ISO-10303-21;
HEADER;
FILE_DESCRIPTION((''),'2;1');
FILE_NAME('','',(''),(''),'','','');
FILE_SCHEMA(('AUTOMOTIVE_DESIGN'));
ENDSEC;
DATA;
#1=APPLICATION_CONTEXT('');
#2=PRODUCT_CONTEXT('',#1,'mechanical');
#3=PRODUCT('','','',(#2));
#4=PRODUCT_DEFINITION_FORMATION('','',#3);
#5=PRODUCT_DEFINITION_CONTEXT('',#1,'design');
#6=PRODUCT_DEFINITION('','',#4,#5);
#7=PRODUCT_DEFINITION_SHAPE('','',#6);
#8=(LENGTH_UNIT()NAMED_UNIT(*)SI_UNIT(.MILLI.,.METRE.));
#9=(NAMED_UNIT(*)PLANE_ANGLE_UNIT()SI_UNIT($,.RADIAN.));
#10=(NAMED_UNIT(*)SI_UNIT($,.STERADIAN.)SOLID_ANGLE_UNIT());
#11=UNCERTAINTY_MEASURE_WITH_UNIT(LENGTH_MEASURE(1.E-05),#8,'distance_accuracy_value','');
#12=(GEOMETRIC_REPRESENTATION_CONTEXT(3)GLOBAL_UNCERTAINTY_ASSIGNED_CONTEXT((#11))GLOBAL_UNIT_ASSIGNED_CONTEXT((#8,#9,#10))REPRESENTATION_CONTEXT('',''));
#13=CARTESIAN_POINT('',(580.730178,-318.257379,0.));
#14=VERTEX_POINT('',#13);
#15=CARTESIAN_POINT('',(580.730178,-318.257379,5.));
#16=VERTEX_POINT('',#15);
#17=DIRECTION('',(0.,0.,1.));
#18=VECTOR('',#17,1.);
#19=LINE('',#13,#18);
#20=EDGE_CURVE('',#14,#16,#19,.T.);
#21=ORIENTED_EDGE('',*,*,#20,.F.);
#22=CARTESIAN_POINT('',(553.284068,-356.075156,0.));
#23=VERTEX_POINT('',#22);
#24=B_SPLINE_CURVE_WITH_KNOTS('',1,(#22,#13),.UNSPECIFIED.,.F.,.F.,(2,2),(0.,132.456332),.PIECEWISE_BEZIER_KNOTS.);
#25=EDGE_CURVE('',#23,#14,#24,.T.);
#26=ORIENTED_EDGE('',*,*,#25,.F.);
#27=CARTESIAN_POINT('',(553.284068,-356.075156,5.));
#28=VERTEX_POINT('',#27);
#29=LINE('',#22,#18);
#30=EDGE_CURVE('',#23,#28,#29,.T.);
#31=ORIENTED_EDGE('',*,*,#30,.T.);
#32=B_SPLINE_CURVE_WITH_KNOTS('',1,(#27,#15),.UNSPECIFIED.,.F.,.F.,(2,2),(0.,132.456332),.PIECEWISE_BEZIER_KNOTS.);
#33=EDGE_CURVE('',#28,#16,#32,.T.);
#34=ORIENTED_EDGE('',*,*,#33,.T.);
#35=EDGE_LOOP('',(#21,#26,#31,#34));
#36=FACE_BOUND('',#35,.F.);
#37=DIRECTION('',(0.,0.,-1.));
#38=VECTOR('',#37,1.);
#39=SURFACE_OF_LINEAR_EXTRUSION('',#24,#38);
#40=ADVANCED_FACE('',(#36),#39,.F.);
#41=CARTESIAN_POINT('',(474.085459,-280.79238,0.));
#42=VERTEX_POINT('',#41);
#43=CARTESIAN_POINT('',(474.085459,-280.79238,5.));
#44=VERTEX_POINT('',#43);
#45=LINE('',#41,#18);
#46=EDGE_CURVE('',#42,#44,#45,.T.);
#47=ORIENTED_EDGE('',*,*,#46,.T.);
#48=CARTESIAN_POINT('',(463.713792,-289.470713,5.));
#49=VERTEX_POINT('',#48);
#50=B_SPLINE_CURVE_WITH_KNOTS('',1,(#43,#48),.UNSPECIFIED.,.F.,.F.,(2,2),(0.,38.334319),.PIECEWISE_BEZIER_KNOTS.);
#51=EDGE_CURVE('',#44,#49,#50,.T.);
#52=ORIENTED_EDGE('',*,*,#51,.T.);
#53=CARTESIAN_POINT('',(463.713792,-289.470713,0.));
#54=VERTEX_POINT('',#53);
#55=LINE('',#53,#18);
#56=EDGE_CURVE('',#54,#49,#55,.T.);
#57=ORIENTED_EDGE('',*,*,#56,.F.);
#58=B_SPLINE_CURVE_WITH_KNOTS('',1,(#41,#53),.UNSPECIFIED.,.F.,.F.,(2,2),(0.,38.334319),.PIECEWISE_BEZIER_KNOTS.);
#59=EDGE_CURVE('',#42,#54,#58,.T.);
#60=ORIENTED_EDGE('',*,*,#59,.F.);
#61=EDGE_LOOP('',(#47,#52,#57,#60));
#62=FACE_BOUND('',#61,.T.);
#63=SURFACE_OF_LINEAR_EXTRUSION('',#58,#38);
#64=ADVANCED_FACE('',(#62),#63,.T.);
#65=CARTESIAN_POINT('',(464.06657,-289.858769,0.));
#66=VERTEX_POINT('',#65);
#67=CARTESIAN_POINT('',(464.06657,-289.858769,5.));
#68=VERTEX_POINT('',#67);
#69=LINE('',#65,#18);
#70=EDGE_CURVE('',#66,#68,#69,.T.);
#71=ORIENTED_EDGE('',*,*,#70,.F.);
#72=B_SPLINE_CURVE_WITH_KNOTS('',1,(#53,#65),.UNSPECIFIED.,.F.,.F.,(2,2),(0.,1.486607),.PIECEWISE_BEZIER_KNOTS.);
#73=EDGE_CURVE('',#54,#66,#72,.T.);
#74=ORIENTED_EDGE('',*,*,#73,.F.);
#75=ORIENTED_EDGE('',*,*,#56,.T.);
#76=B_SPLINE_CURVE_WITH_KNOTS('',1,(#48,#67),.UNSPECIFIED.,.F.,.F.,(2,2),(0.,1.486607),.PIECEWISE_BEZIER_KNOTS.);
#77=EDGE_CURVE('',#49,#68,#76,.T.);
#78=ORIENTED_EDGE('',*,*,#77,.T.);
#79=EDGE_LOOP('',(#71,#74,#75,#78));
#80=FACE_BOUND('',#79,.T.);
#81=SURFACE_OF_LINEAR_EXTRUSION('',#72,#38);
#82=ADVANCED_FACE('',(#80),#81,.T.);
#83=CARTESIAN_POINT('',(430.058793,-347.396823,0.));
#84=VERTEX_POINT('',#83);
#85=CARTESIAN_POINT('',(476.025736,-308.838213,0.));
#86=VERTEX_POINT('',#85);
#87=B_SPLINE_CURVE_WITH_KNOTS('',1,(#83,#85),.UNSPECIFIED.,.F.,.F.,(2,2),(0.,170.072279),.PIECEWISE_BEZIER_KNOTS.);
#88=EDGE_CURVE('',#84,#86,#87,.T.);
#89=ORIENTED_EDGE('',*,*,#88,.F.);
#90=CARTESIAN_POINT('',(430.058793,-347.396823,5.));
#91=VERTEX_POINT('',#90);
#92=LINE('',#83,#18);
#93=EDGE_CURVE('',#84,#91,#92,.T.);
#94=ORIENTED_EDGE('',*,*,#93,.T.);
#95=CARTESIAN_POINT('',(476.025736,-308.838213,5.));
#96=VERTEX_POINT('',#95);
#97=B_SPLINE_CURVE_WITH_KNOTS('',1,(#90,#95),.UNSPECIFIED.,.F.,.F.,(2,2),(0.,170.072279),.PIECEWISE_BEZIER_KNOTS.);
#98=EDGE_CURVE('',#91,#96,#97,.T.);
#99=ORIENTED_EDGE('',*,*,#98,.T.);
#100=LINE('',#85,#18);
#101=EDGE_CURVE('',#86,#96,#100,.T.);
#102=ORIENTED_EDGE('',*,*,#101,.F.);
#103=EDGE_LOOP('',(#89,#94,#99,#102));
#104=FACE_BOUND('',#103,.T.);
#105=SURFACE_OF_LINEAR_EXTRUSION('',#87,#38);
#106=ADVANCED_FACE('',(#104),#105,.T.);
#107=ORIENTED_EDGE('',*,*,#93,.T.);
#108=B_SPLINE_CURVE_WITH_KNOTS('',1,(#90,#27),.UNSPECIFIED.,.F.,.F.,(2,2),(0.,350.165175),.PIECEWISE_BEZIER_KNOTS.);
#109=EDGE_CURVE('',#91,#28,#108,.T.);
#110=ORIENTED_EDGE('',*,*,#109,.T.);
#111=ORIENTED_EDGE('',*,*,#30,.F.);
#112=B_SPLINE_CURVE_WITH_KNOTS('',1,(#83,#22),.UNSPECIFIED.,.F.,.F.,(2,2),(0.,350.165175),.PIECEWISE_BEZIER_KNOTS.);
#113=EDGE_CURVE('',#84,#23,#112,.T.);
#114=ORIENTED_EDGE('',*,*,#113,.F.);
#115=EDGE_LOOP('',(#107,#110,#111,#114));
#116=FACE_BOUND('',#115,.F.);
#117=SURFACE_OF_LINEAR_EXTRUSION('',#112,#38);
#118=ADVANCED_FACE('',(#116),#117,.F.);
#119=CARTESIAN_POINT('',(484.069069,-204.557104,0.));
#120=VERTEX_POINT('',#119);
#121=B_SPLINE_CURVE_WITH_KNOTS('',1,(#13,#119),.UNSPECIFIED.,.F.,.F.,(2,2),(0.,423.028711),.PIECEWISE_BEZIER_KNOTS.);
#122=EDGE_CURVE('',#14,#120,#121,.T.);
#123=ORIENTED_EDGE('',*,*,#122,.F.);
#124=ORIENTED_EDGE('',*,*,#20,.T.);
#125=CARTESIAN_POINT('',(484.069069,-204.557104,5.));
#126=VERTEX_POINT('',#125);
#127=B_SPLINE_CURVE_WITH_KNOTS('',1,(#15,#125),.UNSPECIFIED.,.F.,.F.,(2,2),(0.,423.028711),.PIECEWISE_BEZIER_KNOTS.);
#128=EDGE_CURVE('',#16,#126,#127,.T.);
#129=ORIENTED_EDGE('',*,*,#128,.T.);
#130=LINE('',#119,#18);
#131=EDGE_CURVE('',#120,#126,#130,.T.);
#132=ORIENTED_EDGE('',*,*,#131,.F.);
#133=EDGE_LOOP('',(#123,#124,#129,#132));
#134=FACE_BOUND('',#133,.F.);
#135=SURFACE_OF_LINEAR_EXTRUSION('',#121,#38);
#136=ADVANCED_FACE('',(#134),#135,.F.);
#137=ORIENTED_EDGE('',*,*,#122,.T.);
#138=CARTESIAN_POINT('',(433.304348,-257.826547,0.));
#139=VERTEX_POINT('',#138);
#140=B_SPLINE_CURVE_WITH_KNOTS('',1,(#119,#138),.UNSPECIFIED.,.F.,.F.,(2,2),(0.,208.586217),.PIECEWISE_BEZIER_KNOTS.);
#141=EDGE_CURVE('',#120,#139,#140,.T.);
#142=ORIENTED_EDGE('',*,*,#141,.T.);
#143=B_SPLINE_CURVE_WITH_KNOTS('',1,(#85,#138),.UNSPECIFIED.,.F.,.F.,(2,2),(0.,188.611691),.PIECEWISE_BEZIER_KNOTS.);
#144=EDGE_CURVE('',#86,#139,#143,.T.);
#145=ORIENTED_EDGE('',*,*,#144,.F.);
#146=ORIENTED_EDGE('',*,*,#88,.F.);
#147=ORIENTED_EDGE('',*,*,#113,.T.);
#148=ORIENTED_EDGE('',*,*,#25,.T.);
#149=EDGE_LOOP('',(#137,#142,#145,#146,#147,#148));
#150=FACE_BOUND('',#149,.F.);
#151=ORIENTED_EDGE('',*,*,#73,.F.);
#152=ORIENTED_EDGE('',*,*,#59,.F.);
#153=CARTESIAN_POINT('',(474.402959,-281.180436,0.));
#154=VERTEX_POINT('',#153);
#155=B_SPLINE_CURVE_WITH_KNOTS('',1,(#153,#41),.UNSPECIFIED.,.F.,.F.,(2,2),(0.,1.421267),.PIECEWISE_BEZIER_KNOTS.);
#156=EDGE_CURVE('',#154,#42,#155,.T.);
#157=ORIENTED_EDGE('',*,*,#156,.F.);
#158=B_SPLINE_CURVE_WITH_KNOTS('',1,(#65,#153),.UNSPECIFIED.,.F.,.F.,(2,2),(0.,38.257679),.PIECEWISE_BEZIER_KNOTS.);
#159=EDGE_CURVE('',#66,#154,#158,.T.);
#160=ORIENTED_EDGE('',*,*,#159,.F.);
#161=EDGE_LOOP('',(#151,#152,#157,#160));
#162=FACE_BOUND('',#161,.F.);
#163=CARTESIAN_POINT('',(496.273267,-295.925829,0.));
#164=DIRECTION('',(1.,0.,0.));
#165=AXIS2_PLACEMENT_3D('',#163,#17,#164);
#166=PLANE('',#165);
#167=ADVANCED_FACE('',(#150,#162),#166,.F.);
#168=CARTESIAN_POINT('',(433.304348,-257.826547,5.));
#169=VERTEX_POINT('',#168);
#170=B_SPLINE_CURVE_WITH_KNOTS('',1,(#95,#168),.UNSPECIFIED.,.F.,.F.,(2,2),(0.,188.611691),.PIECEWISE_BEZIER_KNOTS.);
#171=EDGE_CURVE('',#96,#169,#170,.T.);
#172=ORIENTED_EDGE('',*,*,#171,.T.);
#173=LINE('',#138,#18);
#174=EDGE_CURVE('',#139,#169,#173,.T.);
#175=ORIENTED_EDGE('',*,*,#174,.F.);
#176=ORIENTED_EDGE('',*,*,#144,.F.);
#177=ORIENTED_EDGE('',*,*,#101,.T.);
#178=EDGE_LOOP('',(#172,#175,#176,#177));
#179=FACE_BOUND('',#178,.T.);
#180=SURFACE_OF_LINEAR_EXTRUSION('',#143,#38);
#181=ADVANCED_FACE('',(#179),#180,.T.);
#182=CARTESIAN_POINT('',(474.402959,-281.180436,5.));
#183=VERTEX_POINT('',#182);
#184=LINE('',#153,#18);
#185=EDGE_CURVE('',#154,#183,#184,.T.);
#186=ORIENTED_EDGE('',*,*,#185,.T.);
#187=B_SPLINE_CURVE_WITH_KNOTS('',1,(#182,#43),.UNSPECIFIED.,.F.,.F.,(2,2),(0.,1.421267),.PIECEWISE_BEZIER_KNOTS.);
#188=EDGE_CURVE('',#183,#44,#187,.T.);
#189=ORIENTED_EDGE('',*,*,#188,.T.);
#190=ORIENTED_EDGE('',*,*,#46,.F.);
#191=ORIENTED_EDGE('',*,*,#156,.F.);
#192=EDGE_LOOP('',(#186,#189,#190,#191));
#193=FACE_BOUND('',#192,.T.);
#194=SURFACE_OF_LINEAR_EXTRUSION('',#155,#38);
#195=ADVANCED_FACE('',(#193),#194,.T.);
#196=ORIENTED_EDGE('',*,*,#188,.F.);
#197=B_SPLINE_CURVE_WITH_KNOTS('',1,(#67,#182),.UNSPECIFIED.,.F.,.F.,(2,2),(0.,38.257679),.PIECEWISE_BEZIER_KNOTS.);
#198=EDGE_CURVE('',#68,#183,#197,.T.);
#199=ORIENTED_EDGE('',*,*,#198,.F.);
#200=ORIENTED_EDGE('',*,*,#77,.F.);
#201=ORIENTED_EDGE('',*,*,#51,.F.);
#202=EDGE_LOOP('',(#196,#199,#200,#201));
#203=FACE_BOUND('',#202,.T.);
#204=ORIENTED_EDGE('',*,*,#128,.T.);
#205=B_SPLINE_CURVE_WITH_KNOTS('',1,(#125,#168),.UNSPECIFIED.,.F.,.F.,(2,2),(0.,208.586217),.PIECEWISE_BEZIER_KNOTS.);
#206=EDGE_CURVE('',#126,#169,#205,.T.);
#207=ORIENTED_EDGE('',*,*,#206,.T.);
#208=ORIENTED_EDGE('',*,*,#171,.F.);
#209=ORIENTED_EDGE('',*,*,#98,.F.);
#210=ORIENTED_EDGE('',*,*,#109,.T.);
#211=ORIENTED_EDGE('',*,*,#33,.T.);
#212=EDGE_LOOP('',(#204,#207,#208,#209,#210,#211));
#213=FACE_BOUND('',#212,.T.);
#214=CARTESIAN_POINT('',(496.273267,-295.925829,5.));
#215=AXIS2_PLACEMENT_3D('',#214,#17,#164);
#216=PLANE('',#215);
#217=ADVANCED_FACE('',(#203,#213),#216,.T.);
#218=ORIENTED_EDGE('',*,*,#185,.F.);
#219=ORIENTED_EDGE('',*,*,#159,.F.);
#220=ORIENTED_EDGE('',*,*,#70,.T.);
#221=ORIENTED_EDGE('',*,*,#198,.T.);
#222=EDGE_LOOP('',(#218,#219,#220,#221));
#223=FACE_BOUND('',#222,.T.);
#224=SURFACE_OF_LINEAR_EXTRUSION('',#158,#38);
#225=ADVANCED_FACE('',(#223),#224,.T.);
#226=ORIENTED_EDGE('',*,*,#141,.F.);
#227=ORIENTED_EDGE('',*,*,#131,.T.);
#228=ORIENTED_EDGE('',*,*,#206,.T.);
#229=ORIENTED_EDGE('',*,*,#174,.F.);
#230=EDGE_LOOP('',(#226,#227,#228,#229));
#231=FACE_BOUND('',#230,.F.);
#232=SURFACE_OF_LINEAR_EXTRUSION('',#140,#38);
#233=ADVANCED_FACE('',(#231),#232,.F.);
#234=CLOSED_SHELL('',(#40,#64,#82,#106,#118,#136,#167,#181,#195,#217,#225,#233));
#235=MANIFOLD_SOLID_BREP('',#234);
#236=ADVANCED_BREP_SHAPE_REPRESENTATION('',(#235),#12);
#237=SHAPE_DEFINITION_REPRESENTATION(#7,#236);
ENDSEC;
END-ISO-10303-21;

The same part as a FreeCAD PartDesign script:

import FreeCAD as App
import Part
import Sketcher
from FreeCAD import Vector

doc = App.newDocument("Part")
params = doc.addObject("Spreadsheet::Sheet", "Params")
for row, (alias, value) in enumerate([
    ("pad1_length", "5 mm"),
], start=1):
    params.set(f"A{row}", alias)
    params.set(f"B{row}", "=" + value)
    params.setAlias(f"B{row}", alias)

body = doc.addObject("PartDesign::Body", "Body")

# Sketch on XY plane
sketch1 = body.newObject("Sketcher::SketchObject", "Sketch")
sketch1.AttachmentSupport = (doc.getObject("XY_Plane"), [""])
sketch1.MapMode = "FlatFace"
sketch1.addGeometry([
    Part.BSplineCurve([Vector(430.058793, -347.396823, 0), Vector(553.284068, -356.075156, 0)], [2, 2], [0, 350.165175], False, 1, [1, 1], False),  # 0
    Part.BSplineCurve([Vector(553.284068, -356.075156, 0), Vector(580.730178, -318.257379, 0)], [2, 2], [0, 132.456332], False, 1, [1, 1], False),  # 1
    Part.BSplineCurve([Vector(580.730178, -318.257379, 0), Vector(484.069069, -204.557104, 0)], [2, 2], [0, 423.028711], False, 1, [1, 1], False),  # 2
    Part.BSplineCurve([Vector(484.069069, -204.557104, 0), Vector(433.304348, -257.826547, 0)], [2, 2], [0, 208.586217], False, 1, [1, 1], False),  # 3
    Part.BSplineCurve([Vector(476.025736, -308.838213, 0), Vector(433.304348, -257.826547, 0)], [2, 2], [0, 188.611691], False, 1, [1, 1], False),  # 4
    Part.BSplineCurve([Vector(430.058793, -347.396823, 0), Vector(476.025736, -308.838213, 0)], [2, 2], [0, 170.072279], False, 1, [1, 1], False),  # 5
    Part.BSplineCurve([Vector(464.06657, -289.858769, 0), Vector(474.402959, -281.180436, 0)], [2, 2], [0, 38.257679], False, 1, [1, 1], False),  # 6
    Part.BSplineCurve([Vector(463.713792, -289.470713, 0), Vector(464.06657, -289.858769, 0)], [2, 2], [0, 1.486607], False, 1, [1, 1], False),  # 7
    Part.BSplineCurve([Vector(474.085459, -280.79238, 0), Vector(463.713792, -289.470713, 0)], [2, 2], [0, 38.334319], False, 1, [1, 1], False),  # 8
    Part.BSplineCurve([Vector(474.402959, -281.180436, 0), Vector(474.085459, -280.79238, 0)], [2, 2], [0, 1.421267], False, 1, [1, 1], False),  # 9
], False)
sketch1.addConstraint([
    Sketcher.Constraint("Block", 0),
    Sketcher.Constraint("Block", 1),
    Sketcher.Constraint("Block", 2),
    Sketcher.Constraint("Block", 3),
    Sketcher.Constraint("Block", 4),
    Sketcher.Constraint("Block", 5),
    Sketcher.Constraint("Block", 6),
    Sketcher.Constraint("Block", 7),
    Sketcher.Constraint("Block", 8),
    Sketcher.Constraint("Block", 9),
])
pad1 = body.newObject("PartDesign::Pad", "Pad")
pad1.Profile = sketch1
pad1.setExpression("Length", "Params.pad1_length")

doc.recompute()
